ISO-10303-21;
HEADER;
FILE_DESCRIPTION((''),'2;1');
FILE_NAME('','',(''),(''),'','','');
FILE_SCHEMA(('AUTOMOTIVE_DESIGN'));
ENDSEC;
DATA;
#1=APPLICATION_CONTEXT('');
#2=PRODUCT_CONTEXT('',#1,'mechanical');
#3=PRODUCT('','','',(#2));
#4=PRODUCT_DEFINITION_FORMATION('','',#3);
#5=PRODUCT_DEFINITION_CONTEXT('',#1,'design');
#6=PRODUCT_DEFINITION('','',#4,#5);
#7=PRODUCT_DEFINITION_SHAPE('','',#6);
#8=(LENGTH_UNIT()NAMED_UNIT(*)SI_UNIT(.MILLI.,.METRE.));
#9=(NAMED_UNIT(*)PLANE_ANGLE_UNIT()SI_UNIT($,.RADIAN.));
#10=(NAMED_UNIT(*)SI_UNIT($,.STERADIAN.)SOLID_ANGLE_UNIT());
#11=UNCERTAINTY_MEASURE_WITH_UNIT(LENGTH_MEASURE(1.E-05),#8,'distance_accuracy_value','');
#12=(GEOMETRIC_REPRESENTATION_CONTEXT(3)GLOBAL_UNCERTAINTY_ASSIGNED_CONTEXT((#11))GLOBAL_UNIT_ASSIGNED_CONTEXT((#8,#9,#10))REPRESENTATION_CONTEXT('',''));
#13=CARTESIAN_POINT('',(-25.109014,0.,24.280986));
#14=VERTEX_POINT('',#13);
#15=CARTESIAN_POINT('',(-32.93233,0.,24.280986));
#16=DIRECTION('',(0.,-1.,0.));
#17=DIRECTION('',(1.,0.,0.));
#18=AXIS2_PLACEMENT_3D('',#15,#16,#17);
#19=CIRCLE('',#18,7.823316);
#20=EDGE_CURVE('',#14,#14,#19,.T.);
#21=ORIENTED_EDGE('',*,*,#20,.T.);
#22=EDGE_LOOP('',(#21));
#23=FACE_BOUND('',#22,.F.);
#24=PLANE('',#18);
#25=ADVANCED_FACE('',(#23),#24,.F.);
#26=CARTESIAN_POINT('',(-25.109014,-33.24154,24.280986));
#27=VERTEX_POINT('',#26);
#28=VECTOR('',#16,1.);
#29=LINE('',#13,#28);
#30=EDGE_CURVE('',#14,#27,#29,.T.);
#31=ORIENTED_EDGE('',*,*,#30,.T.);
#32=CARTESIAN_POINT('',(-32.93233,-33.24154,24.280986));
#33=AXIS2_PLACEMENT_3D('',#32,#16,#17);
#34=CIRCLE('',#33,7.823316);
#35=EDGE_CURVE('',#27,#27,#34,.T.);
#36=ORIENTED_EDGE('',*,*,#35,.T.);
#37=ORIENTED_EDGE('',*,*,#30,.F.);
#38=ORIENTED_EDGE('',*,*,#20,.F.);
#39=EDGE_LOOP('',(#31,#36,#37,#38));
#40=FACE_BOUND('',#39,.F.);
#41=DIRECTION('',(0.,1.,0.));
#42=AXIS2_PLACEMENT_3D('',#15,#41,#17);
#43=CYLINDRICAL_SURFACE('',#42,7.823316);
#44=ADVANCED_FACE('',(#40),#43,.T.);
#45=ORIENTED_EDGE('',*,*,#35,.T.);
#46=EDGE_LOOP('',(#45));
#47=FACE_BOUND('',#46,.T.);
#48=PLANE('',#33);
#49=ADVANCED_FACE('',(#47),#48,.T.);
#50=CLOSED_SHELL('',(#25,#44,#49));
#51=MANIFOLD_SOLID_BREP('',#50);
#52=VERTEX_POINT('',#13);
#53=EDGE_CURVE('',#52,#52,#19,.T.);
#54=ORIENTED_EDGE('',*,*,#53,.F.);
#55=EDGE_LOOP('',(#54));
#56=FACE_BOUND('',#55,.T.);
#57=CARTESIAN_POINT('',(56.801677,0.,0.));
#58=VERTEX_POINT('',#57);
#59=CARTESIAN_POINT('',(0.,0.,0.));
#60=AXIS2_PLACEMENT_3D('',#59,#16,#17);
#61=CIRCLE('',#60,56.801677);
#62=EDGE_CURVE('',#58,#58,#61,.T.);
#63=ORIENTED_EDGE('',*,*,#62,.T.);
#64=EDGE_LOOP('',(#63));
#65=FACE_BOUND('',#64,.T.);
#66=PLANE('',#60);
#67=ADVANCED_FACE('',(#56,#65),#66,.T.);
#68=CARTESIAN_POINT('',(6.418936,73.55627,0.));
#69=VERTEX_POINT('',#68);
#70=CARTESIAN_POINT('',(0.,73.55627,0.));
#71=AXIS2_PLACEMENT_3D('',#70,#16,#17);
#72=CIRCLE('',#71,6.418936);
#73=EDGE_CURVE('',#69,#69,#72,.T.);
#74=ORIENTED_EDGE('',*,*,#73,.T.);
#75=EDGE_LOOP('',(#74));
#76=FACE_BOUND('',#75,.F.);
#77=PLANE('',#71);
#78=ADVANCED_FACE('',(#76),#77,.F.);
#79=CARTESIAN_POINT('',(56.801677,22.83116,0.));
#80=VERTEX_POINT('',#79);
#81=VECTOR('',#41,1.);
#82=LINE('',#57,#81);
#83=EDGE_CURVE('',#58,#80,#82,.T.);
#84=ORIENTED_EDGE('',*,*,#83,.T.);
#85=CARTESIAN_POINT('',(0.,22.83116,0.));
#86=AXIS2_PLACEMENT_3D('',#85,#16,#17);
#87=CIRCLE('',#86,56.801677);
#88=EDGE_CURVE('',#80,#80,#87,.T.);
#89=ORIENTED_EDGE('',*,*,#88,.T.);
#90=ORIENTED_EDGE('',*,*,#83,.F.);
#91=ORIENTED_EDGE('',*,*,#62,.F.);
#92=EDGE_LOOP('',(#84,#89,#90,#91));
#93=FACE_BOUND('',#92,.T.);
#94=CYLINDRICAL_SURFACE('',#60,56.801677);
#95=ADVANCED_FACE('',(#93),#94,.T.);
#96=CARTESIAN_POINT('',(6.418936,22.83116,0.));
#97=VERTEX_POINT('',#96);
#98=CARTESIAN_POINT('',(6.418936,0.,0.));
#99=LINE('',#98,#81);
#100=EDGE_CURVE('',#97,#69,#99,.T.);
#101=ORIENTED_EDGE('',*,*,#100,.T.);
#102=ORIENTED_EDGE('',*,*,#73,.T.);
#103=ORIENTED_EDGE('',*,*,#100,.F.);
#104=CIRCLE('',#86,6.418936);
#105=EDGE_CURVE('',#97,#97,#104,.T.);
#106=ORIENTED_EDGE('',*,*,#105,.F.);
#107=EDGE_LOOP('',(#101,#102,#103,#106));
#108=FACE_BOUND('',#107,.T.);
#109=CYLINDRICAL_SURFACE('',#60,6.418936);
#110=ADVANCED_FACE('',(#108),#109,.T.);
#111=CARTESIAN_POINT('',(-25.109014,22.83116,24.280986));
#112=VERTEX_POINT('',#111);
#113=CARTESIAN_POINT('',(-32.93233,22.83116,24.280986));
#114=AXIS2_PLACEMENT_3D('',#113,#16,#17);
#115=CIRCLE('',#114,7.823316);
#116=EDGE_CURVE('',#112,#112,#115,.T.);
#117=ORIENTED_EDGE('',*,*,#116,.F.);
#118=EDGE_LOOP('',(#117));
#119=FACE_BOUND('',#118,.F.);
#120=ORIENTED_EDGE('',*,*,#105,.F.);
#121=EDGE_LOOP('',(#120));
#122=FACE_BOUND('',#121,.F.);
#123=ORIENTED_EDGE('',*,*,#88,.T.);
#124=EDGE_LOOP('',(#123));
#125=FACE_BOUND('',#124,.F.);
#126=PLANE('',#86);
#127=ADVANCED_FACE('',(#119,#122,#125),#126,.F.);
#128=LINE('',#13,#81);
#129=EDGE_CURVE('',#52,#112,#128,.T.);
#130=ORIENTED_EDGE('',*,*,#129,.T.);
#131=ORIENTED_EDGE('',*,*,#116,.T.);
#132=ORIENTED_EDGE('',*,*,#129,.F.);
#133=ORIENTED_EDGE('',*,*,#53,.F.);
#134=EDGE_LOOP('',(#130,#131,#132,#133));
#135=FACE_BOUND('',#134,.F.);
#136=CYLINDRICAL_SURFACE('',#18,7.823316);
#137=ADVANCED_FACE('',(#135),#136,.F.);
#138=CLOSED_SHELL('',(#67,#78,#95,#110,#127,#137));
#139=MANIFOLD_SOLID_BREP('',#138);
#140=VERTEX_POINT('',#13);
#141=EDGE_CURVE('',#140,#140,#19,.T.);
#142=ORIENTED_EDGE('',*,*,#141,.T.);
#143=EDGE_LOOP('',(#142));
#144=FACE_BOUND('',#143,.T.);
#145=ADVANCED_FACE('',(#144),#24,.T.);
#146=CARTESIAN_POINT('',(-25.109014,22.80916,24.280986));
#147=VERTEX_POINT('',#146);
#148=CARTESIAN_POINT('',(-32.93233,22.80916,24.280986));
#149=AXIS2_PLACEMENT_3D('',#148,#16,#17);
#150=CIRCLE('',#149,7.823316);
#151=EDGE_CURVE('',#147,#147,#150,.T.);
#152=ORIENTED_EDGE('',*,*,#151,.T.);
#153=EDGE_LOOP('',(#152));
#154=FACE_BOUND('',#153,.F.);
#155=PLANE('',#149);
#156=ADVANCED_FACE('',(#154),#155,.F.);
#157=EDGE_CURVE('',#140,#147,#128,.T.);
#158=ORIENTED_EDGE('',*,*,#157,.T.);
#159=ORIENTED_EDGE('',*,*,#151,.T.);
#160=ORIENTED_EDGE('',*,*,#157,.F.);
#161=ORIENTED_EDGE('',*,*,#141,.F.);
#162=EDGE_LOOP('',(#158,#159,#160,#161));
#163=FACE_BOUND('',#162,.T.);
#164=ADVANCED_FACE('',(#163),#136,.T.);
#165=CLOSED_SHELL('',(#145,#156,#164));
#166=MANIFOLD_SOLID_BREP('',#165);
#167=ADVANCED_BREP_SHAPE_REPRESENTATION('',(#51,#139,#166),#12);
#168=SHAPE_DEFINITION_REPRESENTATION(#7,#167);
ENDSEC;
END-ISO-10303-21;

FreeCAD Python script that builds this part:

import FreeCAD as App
import Part
import Sketcher
Q = App.Units.Quantity

doc = App.newDocument("Part")
body = doc.addObject("PartDesign::Body", "Body")

sketch1 = doc.addObject("Sketcher::SketchObject", "Sketch")
body.addObject(sketch1)
sketch1.AttachmentSupport = (doc.XZ_Plane, [""])
sketch1.MapMode = "FlatFace"
sketch1.addGeometry(Part.Circle(App.Vector(-32.93233, 24.280986, 0), App.Vector(0, 0, 1), 7.823316), False)
sketch1.addConstraint([
    Sketcher.Constraint("Diameter", 0, 15.646632),
    Sketcher.Constraint("DistanceX", 0, 3, -1, 1, 32.93233),
    Sketcher.Constraint("DistanceY", -1, 1, 0, 3, 24.280986),
])
pad1 = doc.addObject("PartDesign::Pad", "Pad")
body.addObject(pad1)
pad1.Profile = sketch1
pad1.Length = 33.24154
body2 = doc.addObject("PartDesign::Body", "Body001")

sketch2 = doc.addObject("Sketcher::SketchObject", "Sketch001")
body2.addObject(sketch2)
sketch2.AttachmentSupport = (doc.getObject("XZ_Plane001"), [""])
sketch2.MapMode = "FlatFace"
sketch2.addGeometry([
    Part.Circle(App.Vector(0, 0, 0), App.Vector(0, 0, 1), 56.801677),
    Part.Circle(App.Vector(-32.93233, 24.280986, 0), App.Vector(0, 0, 1), 7.823316),
], False)
sketch2.addConstraint([
    Sketcher.Constraint("Coincident", 0, 3, -1, 1),
    Sketcher.Constraint("Diameter", 0, 113.603354),
    Sketcher.Constraint("Diameter", 1, 15.646632),
    Sketcher.Constraint("DistanceX", 1, 3, -1, 1, 32.93233),
    Sketcher.Constraint("DistanceY", -1, 1, 1, 3, 24.280986),
])
pad2 = doc.addObject("PartDesign::Pad", "Pad001")
body2.addObject(pad2)
pad2.Profile = sketch2
pad2.Length = 22.83116
pad2.Reversed = True

sketch3 = doc.addObject("Sketcher::SketchObject", "Sketch002")
body2.addObject(sketch3)
sketch3.AttachmentSupport = (doc.getObject("XZ_Plane001"), [""])
sketch3.MapMode = "FlatFace"
sketch3.addGeometry(Part.Circle(App.Vector(0, 0, 0), App.Vector(0, 0, 1), 6.3754), False)
sketch3.addConstraint([
    Sketcher.Constraint("Coincident", 0, 3, -1, 1),
    Sketcher.Constraint("Diameter", 0, Q("0.502 in")),
])
doc.recompute()
hole = doc.addObject("PartDesign::Hole", "Hole")
body2.addObject(hole)
hole.Profile = sketch3
hole.ThreadType = "None"
hole.Diameter = Q("0.502 in")
hole.DepthType = "ThroughAll"

sketch4 = doc.addObject("Sketcher::SketchObject", "Sketch003")
body2.addObject(sketch4)
sketch4.AttachmentSupport = (doc.getObject("XZ_Plane001"), [""])
sketch4.MapMode = "FlatFace"
sketch4.addGeometry(Part.Circle(App.Vector(0, 0, 0), App.Vector(0, 0, 1), 6.418936), False)
sketch4.addConstraint([
    Sketcher.Constraint("Coincident", 0, 3, -1, 1),
    Sketcher.Constraint("Diameter", 0, 12.837872),
])
pad3 = doc.addObject("PartDesign::Pad", "Pad002")
body2.addObject(pad3)
pad3.Profile = sketch4
pad3.Length = 73.55627
pad3.Reversed = True
body3 = doc.addObject("PartDesign::Body", "Body002")

sketch5 = doc.addObject("Sketcher::SketchObject", "Sketch004")
body3.addObject(sketch5)
sketch5.AttachmentSupport = (doc.getObject("XZ_Plane002"), [""])
sketch5.MapMode = "FlatFace"
sketch5.addGeometry(Part.Circle(App.Vector(-32.93233, 24.280986, 0), App.Vector(0, 0, 1), 7.823316), False)
sketch5.addConstraint([
    Sketcher.Constraint("Diameter", 0, 15.646632),
    Sketcher.Constraint("DistanceX", 0, 3, -1, 1, 32.93233),
    Sketcher.Constraint("DistanceY", -1, 1, 0, 3, 24.280986),
])
pad4 = doc.addObject("PartDesign::Pad", "Pad003")
body3.addObject(pad4)
pad4.Profile = sketch5
pad4.Length = 22.80916
pad4.Reversed = True

doc.recompute()
